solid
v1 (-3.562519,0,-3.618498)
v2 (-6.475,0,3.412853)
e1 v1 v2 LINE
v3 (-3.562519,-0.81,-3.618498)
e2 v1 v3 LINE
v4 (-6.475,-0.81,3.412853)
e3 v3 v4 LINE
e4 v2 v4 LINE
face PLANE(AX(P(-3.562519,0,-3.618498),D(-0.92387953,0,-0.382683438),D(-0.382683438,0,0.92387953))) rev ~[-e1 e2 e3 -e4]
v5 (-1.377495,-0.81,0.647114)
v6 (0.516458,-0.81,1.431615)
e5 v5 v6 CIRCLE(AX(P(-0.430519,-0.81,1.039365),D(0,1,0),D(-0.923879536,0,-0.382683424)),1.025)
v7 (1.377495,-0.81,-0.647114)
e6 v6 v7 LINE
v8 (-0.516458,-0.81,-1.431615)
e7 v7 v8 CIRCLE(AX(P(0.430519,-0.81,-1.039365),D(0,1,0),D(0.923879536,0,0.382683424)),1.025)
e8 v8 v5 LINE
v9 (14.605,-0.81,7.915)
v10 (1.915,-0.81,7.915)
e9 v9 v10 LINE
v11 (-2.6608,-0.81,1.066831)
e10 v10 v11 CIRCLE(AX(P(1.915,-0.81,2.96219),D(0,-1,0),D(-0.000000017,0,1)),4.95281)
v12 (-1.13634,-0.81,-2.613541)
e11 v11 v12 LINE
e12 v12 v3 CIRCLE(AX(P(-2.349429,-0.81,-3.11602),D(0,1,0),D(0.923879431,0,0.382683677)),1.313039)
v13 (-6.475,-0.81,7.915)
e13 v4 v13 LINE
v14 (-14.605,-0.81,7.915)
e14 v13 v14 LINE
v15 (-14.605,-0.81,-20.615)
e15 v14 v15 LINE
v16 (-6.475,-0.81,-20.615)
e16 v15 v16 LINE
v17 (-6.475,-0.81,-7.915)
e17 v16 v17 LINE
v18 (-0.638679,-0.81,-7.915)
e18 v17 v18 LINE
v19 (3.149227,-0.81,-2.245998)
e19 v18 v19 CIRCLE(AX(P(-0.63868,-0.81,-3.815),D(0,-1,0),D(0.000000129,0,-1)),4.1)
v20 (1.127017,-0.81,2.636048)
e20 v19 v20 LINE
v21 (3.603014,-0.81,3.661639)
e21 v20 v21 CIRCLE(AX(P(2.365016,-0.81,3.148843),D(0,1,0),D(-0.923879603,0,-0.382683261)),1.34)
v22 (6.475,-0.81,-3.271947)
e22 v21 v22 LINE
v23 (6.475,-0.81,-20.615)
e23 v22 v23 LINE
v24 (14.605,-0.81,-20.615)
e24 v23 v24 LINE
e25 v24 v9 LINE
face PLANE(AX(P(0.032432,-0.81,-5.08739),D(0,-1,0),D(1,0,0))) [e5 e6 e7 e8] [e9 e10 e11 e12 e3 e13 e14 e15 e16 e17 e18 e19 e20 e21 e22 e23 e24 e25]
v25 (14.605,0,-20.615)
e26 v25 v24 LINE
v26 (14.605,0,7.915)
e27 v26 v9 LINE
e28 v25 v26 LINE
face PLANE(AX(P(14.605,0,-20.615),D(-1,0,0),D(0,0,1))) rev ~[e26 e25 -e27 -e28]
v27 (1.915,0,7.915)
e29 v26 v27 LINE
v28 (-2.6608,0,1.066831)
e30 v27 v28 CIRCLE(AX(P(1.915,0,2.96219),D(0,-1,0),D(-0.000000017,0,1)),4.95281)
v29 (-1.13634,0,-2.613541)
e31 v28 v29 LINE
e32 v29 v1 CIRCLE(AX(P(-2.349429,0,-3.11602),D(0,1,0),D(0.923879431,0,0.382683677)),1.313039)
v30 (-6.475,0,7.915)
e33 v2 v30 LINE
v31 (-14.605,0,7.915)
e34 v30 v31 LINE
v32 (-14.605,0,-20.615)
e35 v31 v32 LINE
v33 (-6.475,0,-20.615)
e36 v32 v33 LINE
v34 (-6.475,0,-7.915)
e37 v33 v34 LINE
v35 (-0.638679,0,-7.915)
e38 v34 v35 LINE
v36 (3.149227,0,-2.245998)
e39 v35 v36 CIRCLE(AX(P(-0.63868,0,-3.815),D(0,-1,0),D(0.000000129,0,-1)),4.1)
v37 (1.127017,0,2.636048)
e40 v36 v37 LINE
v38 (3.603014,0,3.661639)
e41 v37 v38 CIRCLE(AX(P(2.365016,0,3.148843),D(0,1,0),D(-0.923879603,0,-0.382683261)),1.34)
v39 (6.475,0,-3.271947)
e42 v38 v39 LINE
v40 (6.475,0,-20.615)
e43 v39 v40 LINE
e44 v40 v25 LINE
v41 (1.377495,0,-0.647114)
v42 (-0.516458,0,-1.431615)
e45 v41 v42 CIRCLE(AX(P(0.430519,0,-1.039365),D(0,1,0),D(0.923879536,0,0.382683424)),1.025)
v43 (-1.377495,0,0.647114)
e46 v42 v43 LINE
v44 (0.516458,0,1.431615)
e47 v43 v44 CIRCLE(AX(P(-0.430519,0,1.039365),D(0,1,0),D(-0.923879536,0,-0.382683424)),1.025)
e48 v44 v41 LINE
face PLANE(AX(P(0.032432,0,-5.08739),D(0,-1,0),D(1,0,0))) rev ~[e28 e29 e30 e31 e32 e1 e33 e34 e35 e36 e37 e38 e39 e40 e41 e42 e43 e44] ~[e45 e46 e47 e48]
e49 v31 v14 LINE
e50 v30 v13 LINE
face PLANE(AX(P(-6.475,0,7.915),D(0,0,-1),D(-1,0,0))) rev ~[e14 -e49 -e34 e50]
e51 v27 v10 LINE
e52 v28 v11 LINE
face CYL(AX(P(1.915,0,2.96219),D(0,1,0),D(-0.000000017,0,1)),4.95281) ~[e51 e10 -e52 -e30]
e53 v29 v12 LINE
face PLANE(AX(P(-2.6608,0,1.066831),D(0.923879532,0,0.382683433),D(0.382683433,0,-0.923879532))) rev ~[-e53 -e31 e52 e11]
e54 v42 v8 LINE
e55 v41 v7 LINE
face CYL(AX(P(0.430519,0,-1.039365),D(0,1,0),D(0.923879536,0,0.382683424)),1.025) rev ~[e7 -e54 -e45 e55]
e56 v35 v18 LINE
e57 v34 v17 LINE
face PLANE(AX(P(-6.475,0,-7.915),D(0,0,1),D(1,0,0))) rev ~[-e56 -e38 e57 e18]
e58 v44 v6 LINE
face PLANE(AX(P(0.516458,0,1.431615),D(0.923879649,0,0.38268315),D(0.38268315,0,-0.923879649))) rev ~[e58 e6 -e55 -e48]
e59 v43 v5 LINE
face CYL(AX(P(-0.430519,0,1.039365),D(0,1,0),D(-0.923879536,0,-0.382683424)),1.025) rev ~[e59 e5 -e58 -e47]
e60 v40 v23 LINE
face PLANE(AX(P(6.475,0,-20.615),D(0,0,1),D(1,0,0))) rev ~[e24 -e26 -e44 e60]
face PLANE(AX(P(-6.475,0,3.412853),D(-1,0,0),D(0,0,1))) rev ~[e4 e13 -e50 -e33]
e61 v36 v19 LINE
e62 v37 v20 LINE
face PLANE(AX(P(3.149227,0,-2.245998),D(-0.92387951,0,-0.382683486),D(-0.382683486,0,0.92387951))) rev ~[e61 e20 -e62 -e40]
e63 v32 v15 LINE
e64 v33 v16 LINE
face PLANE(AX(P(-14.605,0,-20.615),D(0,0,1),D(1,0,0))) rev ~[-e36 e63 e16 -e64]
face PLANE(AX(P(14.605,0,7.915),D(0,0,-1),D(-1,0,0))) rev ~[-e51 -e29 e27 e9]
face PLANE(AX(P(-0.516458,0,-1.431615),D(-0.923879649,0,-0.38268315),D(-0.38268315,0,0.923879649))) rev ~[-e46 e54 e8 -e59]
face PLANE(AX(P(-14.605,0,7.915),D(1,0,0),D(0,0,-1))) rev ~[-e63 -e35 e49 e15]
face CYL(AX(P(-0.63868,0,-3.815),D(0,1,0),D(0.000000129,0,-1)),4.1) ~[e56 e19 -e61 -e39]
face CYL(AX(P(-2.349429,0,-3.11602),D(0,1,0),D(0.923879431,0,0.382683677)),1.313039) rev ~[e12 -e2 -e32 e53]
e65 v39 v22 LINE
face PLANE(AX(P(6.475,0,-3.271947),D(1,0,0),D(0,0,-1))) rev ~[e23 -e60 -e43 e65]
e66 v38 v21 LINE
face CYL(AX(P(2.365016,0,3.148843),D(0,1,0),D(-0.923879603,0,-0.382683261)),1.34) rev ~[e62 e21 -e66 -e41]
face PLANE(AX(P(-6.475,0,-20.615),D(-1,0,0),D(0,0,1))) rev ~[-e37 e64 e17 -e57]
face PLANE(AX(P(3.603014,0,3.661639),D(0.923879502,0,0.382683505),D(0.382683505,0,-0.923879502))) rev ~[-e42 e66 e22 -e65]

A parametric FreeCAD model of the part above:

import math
import FreeCAD as App
import Part
import Sketcher

V = App.Vector
Q = App.Units.Quantity

doc = App.newDocument("Part")
params = doc.addObject("Spreadsheet::Sheet", "Params")
for row, (alias, value) in enumerate([
    ("sketch1_radius", "4.1 mm"),
    ("sketch1_radius2", "1.34 mm"),
    ("sketch1_height", "12.7 mm"),
    ("sketch1_width", "8.13 mm"),
    ("sketch1_width2", "12.69 mm"),
    ("pad1_length", "0.81 mm"),
], start=1):
    params.set(f"A{row}", alias)
    params.set(f"B{row}", "=" + value)
    params.setAlias(f"B{row}", alias)

body = doc.addObject("PartDesign::Body", "Body")

# Sketch on XZ plane
sketch1 = doc.addObject("Sketcher::SketchObject", "Sketch")
body.addObject(sketch1)
sketch1.AttachmentSupport = (doc.XZ_Plane, [""])
sketch1.MapMode = "FlatFace"
sketch1.addGeometry([
    Part.LineSegment(V(-6.5, 3.4, 0), V(-6.5, 7.9, 0)),  # 0
    Part.LineSegment(V(-6.5, 7.9, 0), V(-14.6, 7.9, 0)),  # 1
    Part.LineSegment(V(-14.6, 7.9, 0), V(-14.6, -20.6, 0)),  # 2
    Part.LineSegment(V(-14.6, -20.6, 0), V(-6.5, -20.6, 0)),  # 3
    Part.LineSegment(V(-6.5, -20.6, 0), V(-6.5, -7.9, 0)),  # 4
    Part.LineSegment(V(-6.5, -7.9, 0), V(-0.6, -7.9, 0)),  # 5
    Part.ArcOfCircle(Part.Circle(V(-0.6, -3.8, 0), V(0, 0, 1), 4.1), math.radians(-90), math.radians(22)),  # 6
    Part.LineSegment(V(3.1, -2.2, 0), V(1.1, 2.6, 0)),  # 7
    Part.ArcOfCircle(Part.Circle(V(2.4, 3.1, 0), V(0, 0, 1), 1.3), math.radians(22), math.radians(202)),  # 8
    Part.LineSegment(V(3.6, 3.7, 0), V(6.5, -3.3, 0)),  # 9
    Part.LineSegment(V(6.5, -3.3, 0), V(6.5, -20.6, 0)),  # 10
    Part.LineSegment(V(6.5, -20.6, 0), V(14.6, -20.6, 0)),  # 11
    Part.LineSegment(V(14.6, -20.6, 0), V(14.6, 7.9, 0)),  # 12
    Part.LineSegment(V(14.6, 7.9, 0), V(1.9, 7.9, 0)),  # 13
    Part.ArcOfCircle(Part.Circle(V(1.9, 3, 0), V(0, 0, 1), 5), math.radians(90), math.radians(203)),  # 14
    Part.LineSegment(V(-2.7, 1.1, 0), V(-1.1, -2.6, 0)),  # 15
    Part.ArcOfCircle(Part.Circle(V(-2.3, -3.1, 0), V(0, 0, 1), 1.3), math.radians(-157), math.radians(23)),  # 16
    Part.LineSegment(V(-3.6, -3.6, 0), V(-6.5, 3.4, 0)),  # 17
    Part.ArcOfCircle(Part.Circle(V(0.4, -1, 0), V(0, 0, 1), 1), math.radians(-158), math.radians(22)),  # 18
    Part.LineSegment(V(-0.5, -1.4, 0), V(-1.4, 0.6, 0)),  # 19
    Part.ArcOfCircle(Part.Circle(V(-0.4, 1, 0), V(0, 0, 1), 1), math.radians(22), math.radians(202)),  # 20
    Part.LineSegment(V(0.5, 1.4, 0), V(1.4, -0.6, 0)),  # 21
], False)
sketch1.addConstraint([
    Sketcher.Constraint("Coincident", 0, 2, 1, 1),
    Sketcher.Constraint("Coincident", 1, 2, 2, 1),
    Sketcher.Constraint("Coincident", 2, 2, 3, 1),
    Sketcher.Constraint("Coincident", 3, 2, 4, 1),
    Sketcher.Constraint("Coincident", 4, 2, 5, 1),
    Sketcher.Constraint("Tangent", 5, 2, 6, 1),
    Sketcher.Constraint("Tangent", 6, 2, 7, 1),
    Sketcher.Constraint("Tangent", 7, 2, 8, 2),
    Sketcher.Constraint("Tangent", 8, 1, 9, 1),
    Sketcher.Constraint("Coincident", 9, 2, 10, 1),
    Sketcher.Constraint("Coincident", 10, 2, 11, 1),
    Sketcher.Constraint("Coincident", 11, 2, 12, 1),
    Sketcher.Constraint("Coincident", 12, 2, 13, 1),
    Sketcher.Constraint("Tangent", 13, 2, 14, 1),
    Sketcher.Constraint("Tangent", 14, 2, 15, 1),
    Sketcher.Constraint("Tangent", 15, 2, 16, 2),
    Sketcher.Constraint("Tangent", 16, 1, 17, 1),
    Sketcher.Constraint("Coincident", 17, 2, 0, 1),
    Sketcher.Constraint("Tangent", 18, 1, 19, 1),
    Sketcher.Constraint("Tangent", 19, 2, 20, 2),
    Sketcher.Constraint("Tangent", 20, 1, 21, 1),
    Sketcher.Constraint("Tangent", 21, 2, 18, 2),
    Sketcher.Constraint("Vertical", 0),
    Sketcher.Constraint("Horizontal", 1),
    Sketcher.Constraint("Vertical", 2),
    Sketcher.Constraint("Horizontal", 3),
    Sketcher.Constraint("Vertical", 4),
    Sketcher.Constraint("Horizontal", 5),
    Sketcher.Constraint("Vertical", 10),
    Sketcher.Constraint("Horizontal", 11),
    Sketcher.Constraint("Vertical", 12),
    Sketcher.Constraint("Horizontal", 13),
    Sketcher.Constraint("Equal", 18, 20),
    Sketcher.Constraint("Symmetric", 18, 3, 20, 3, -1, 1),
    Sketcher.Constraint("Symmetric", 3, 2, 10, 2, -2),
    Sketcher.Constraint("Symmetric", 1, 2, 12, 2, -2),
    Sketcher.Constraint("Symmetric", 0, 2, 4, 2, -1),
    Sketcher.Constraint("Parallel", 7, 9),
    Sketcher.Constraint("Parallel", 9, 15),
    Sketcher.Constraint("Parallel", 15, 17),
    Sketcher.Constraint("Parallel", 17, 19),
    Sketcher.Constraint("Radius", 6, 4.1),
    Sketcher.Constraint("Radius", 8, 1.34),
    Sketcher.Constraint("DistanceY", 4, 1, 4, 2, 12.7),
    Sketcher.Constraint("Angle", 7, Q("112.500003 deg")),
    Sketcher.Constraint("Radius", 18, 1.025),
    Sketcher.Constraint("DistanceX", 1, 2, 1, 1, 8.13),
    Sketcher.Constraint("DistanceX", 13, 2, 13, 1, 12.69),
    Sketcher.Constraint("DistanceY", 2, 2, 2, 1, 28.53),
    Sketcher.Constraint("Distance", 19, 2.25),
    Sketcher.Constraint("Radius", 14, 4.95281),
    Sketcher.Constraint("Radius", 16, 1.313039),
    Sketcher.Constraint("DistanceX", 0, 2, 14, 3, 8.39),
    Sketcher.Constraint("DistanceX", 5, 1, 5, 2, 5.836321),
    Sketcher.Constraint("DistanceX", 18, 3, 7, 2, 0.696498),
    Sketcher.Constraint("DistanceY", 6, 3, 16, 1, 0.196502),
])
sketch1.setExpression("Constraints[41]", "Params.sketch1_radius")
sketch1.setExpression("Constraints[42]", "Params.sketch1_radius2")
sketch1.setExpression("Constraints[43]", "Params.sketch1_height")
sketch1.setExpression("Constraints[46]", "Params.sketch1_width")
sketch1.setExpression("Constraints[47]", "Params.sketch1_width2")
pad1 = doc.addObject("PartDesign::Pad", "Pad")
body.addObject(pad1)
pad1.Profile = sketch1
pad1.setExpression("Length", "Params.pad1_length")

doc.recompute()
